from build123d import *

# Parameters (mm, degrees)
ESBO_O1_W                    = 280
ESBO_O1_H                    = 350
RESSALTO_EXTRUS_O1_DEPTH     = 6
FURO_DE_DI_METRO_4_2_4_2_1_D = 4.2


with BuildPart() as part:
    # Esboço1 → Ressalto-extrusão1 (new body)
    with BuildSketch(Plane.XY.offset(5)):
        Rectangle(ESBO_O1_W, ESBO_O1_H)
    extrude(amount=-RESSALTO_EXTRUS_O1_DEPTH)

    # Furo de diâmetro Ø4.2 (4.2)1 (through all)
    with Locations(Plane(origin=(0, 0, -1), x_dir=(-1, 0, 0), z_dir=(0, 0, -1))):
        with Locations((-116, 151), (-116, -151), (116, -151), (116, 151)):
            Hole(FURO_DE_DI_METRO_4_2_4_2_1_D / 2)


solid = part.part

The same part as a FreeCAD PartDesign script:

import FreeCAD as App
import Part
import Sketcher
Q = App.Units.Quantity


def add_polygon(sketch, points):
    """Adds a closed chain of lines whose ends are joined by coincident constraints."""
    first, n = sketch.GeometryCount, len(points)
    for a, b in zip(points, points[1:] + points[:1]):
        sketch.addGeometry(Part.LineSegment(App.Vector(*a, 0), App.Vector(*b, 0)), False)
    for i in range(n):
        sketch.addConstraint(Sketcher.Constraint("Coincident", first + i, 2, first + (i + 1) % n, 1))

doc = App.newDocument("Part")
body = doc.addObject("PartDesign::Body", "Body")

sketch1 = body.newObject("Sketcher::SketchObject", "Sketch")
sketch1.AttachmentSupport = (doc.getObject("XY_Plane"), [""])
sketch1.MapMode = "FlatFace"
sketch1.AttachmentOffset = App.Placement(App.Vector(0, 0, 5), App.Rotation())
add_polygon(sketch1, [(-140, 175), (-140, -175), (140, -175), (140, 175)])
sketch1.addConstraint([
    Sketcher.Constraint("Vertical", 0),
    Sketcher.Constraint("Horizontal", 1),
    Sketcher.Constraint("Vertical", 2),
    Sketcher.Constraint("Horizontal", 3),
    Sketcher.Constraint("Symmetric", 0, 2, 2, 2, -1, 1),
    Sketcher.Constraint("DistanceX", 1, 1, 1, 2, Q("280 mm")),
    Sketcher.Constraint("DistanceY", 0, 2, 0, 1, Q("350 mm")),
])
pad1 = body.newObject("PartDesign::Pad", "Pad")
pad1.Profile = sketch1
pad1.Length = 6
pad1.Reversed = True

sketch2 = body.newObject("Sketcher::SketchObject", "Sketch001")
sketch2.AttachmentSupport = (doc.getObject("XY_Plane"), [""])
sketch2.MapMode = "FlatFace"
sketch2.AttachmentOffset = App.Placement(App.Vector(0, 0, -1), App.Rotation())
sketch2.addGeometry([
    Part.Circle(App.Vector(116, 151, 0), App.Vector(0, 0, 1), 2.1),
    Part.Circle(App.Vector(116, -151, 0), App.Vector(0, 0, 1), 2.1),
    Part.Circle(App.Vector(-116, -151, 0), App.Vector(0, 0, 1), 2.1),
    Part.Circle(App.Vector(-116, 151, 0), App.Vector(0, 0, 1), 2.1),
], False)
sketch2.addConstraint([
    Sketcher.Constraint("Equal", 0, 1),
    Sketcher.Constraint("Equal", 1, 2),
    Sketcher.Constraint("Equal", 2, 3),
    Sketcher.Constraint("Symmetric", 0, 3, 2, 3, -1, 1),
    Sketcher.Constraint("Symmetric", 1, 3, 3, 3, -1, 1),
    Sketcher.Constraint("Symmetric", 1, 3, 2, 3, -2),
    Sketcher.Constraint("Diameter", 0, Q("4.2 mm")),
    Sketcher.Constraint("DistanceX", -1, 1, 0, 3, Q("116 mm")),
    Sketcher.Constraint("DistanceY", -1, 1, 0, 3, Q("151 mm")),
])
doc.recompute()
hole = body.newObject("PartDesign::Hole", "Hole")
hole.Profile = sketch2
hole.ThreadType = "None"
hole.Diameter = 4.2
hole.DepthType = "ThroughAll"
hole.Reversed = True

doc.recompute()
